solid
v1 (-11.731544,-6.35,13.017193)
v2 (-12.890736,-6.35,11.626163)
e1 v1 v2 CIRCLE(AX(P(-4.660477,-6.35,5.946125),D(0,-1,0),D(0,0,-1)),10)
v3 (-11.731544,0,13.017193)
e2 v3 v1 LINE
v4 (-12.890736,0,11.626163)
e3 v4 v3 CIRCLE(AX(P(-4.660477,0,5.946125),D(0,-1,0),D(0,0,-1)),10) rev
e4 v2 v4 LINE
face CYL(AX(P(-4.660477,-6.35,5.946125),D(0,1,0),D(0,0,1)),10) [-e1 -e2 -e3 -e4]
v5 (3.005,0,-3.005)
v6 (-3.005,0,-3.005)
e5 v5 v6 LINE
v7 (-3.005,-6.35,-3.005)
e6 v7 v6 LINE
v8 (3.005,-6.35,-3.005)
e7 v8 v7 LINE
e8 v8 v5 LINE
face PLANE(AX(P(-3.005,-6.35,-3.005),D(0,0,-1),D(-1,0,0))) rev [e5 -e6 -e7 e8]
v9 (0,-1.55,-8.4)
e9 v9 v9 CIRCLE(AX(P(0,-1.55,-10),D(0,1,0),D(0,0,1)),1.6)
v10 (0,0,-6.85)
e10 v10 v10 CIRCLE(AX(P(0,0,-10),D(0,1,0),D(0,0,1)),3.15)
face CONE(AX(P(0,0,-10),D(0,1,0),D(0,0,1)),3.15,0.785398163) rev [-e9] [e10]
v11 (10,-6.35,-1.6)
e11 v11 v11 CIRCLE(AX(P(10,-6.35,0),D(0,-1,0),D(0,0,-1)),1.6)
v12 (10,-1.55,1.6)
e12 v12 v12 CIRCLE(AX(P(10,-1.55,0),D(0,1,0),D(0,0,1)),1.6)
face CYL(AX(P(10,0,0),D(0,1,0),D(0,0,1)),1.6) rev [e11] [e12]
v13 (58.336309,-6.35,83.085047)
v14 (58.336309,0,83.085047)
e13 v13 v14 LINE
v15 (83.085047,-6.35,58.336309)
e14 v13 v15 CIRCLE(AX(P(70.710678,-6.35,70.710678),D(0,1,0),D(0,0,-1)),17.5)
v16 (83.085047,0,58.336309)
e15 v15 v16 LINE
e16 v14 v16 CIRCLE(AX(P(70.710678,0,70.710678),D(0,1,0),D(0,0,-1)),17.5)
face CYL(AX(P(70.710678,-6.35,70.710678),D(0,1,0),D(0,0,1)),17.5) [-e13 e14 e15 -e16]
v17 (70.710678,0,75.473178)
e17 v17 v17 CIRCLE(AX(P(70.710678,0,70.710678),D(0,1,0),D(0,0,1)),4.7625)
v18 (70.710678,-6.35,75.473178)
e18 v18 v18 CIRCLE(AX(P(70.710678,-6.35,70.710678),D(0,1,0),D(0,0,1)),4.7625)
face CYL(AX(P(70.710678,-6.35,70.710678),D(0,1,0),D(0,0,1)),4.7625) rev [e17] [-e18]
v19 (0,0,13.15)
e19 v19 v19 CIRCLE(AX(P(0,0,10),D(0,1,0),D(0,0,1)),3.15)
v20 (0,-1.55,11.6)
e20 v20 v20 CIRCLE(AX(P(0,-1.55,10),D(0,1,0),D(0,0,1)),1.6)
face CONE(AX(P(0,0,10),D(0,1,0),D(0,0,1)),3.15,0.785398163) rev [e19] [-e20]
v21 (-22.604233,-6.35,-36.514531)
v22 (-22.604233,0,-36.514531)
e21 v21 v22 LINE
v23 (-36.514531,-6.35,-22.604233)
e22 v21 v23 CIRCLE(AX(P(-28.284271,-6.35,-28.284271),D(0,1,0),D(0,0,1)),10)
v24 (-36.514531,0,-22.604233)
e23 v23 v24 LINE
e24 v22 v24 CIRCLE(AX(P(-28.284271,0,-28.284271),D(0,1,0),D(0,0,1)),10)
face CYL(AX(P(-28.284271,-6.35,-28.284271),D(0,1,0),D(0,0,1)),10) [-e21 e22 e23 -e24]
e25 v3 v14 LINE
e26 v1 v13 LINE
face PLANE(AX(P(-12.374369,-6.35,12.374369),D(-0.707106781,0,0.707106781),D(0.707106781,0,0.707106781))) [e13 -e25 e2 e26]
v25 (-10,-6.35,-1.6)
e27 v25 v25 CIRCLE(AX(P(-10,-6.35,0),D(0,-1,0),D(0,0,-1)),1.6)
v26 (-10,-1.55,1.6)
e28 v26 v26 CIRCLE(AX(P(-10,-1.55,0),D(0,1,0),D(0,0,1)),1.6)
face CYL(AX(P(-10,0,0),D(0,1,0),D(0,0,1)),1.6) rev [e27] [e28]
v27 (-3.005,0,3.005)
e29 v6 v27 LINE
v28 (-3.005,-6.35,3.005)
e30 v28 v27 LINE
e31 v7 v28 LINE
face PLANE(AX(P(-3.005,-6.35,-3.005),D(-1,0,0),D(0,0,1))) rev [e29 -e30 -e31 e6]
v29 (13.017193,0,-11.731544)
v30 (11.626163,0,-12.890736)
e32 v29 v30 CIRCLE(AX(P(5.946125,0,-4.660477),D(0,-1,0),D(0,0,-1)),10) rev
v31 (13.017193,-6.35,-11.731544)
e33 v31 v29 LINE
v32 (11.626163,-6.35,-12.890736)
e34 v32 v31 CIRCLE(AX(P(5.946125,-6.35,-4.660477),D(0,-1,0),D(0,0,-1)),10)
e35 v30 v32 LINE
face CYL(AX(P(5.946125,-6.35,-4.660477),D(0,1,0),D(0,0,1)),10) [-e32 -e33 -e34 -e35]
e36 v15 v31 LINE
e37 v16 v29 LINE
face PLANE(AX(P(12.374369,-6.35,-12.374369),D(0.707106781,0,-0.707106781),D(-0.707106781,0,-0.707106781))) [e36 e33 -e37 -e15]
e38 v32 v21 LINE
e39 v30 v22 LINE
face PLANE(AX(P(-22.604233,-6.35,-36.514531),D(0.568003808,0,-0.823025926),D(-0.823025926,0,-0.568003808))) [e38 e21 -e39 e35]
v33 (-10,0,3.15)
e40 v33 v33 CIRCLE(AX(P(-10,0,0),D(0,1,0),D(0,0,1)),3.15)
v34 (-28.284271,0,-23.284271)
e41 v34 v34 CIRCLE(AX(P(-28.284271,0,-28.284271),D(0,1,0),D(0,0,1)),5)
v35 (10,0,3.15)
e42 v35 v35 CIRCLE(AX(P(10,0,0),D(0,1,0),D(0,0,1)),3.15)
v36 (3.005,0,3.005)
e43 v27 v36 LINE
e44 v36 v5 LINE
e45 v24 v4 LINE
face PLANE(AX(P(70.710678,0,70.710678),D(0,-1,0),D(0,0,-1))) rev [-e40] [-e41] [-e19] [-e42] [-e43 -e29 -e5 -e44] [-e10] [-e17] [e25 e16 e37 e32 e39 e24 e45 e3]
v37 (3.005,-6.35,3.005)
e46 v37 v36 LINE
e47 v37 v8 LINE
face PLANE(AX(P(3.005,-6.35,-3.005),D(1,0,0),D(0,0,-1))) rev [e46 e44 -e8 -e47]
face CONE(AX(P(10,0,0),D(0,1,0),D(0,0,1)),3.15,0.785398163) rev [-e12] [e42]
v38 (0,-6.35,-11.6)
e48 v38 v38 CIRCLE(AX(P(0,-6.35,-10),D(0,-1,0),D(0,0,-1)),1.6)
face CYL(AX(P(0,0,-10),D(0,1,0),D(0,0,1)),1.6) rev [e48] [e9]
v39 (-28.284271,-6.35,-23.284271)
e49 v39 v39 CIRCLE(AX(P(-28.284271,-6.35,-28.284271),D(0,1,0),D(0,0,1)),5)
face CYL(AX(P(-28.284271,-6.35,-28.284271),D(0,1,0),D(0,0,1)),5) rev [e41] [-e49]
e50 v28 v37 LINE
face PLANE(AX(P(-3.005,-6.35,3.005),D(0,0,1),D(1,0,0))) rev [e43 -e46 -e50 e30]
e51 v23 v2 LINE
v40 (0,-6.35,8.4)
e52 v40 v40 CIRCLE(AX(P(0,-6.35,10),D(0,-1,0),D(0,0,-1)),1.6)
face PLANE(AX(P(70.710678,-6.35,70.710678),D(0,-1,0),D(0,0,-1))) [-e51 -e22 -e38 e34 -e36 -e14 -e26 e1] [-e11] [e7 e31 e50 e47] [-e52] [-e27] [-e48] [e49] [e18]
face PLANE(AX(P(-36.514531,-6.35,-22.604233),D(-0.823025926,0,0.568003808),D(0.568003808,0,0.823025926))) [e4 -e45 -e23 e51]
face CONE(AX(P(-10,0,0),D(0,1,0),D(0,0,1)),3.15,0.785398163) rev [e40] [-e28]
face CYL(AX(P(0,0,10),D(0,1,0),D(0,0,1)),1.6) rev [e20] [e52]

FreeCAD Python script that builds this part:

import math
import FreeCAD as App
import Part
import Sketcher

V = App.Vector
Q = App.Units.Quantity


def edges_at(feature, points):
    """Names of the edges that pass closest to the given points."""
    edges = feature.Shape.Edges
    near = lambda p: min(range(len(edges)), key=lambda i: edges[i].distToShape(Part.Vertex(*p))[0])
    return sorted({f"Edge{near(p) + 1}" for p in points})


def add_polygon(sketch, points):
    """Adds a closed chain of lines whose ends are joined by coincident constraints."""
    first, n = sketch.GeometryCount, len(points)
    for a, b in zip(points, points[1:] + points[:1]):
        sketch.addGeometry(Part.LineSegment(App.Vector(*a, 0), App.Vector(*b, 0)), False)
    for i in range(n):
        sketch.addConstraint(Sketcher.Constraint("Coincident", first + i, 2, first + (i + 1) % n, 1))

doc = App.newDocument("Part")
body = doc.addObject("PartDesign::Body", "Body")

# Sketch on XZ plane
sketch1 = body.newObject("Sketcher::SketchObject", "Sketch")
sketch1.AttachmentSupport = (doc.getObject("XZ_Plane"), [""])
sketch1.MapMode = "FlatFace"
sketch1.addGeometry(Part.LineSegment(V(83.1, 58.3, 0), V(12.4, -12.4, 0)), False)  # 0
sketch1.addGeometry(Part.LineSegment(V(12.4, -12.4, 0), V(-22.6, -36.5, 0)), False)  # 1
sketch1.addGeometry(Part.ArcOfCircle(Part.Circle(V(-28.3, -28.3, 0), V(0, 0, 1), 10), math.radians(145), math.radians(305)), False)  # 2
sketch1.addGeometry(Part.LineSegment(V(-36.5, -22.6, 0), V(-12.4, 12.4, 0)), False)  # 3
sketch1.addGeometry(Part.LineSegment(V(-12.4, 12.4, 0), V(58.3, 83.1, 0)), False)  # 4
sketch1.addGeometry(Part.ArcOfCircle(Part.Circle(V(70.7, 70.7, 0), V(0, 0, 1), 17.5), math.radians(-45), math.radians(135)), False)  # 5
sketch1.addGeometry(Part.Circle(V(70.7, 70.7, 0), V(0, 0, 1), 4.8), False)  # 6
add_polygon(sketch1, [(3, 3), (-3, 3), (-3, -3), (3, -3)])  # lines 7-10
sketch1.addGeometry(Part.Circle(V(-28.3, -28.3, 0), V(0, 0, 1), 5), False)  # 11
sketch1.addConstraint([
    Sketcher.Constraint("Coincident", 0, 2, 1, 1),
    Sketcher.Constraint("Tangent", 1, 2, 2, 2),
    Sketcher.Constraint("Tangent", 2, 1, 3, 1),
    Sketcher.Constraint("Coincident", 3, 2, 4, 1),
    Sketcher.Constraint("Tangent", 4, 2, 5, 2),
    Sketcher.Constraint("Tangent", 5, 1, 0, 1),
    Sketcher.Constraint("Horizontal", 7),
    Sketcher.Constraint("Vertical", 8),
    Sketcher.Constraint("Horizontal", 9),
    Sketcher.Constraint("Vertical", 10),
    Sketcher.Constraint("Coincident", 6, 3, 5, 3),
    Sketcher.Constraint("Coincident", 11, 3, 2, 3),
    Sketcher.Constraint("Symmetric", 0, 2, 3, 2, -1, 1),
    Sketcher.Constraint("Symmetric", 7, 2, 9, 2, -1, 1),
    Sketcher.Constraint("Parallel", 0, 4),
    Sketcher.Constraint("Equal", 9, 8),
    Sketcher.Constraint("Equal", 1, 3),
    Sketcher.Constraint("Equal", 0, 4),
    Sketcher.Constraint("Diameter", 11, 10.0),
    Sketcher.Constraint("Radius", 2, 10.0),
    Sketcher.Constraint("Radius", 5, 17.5),
    Sketcher.Constraint("Angle", 0, Q("-135 deg")),
    Sketcher.Constraint("Distance", 0, 100.0),
    Sketcher.Constraint("Diameter", 6, 9.525),
    Sketcher.Constraint("Distance", 1, 42.5),
    Sketcher.Constraint("DistanceX", 7, 2, 7, 1, 6.01),
])
pad1 = body.newObject("PartDesign::Pad", "Pad")
pad1.Profile = sketch1
pad1.Length = 6.35

# Sketch on XZ plane
sketch2 = body.newObject("Sketcher::SketchObject", "Sketch001")
sketch2.AttachmentSupport = (doc.getObject("XZ_Plane"), [""])
sketch2.MapMode = "FlatFace"
sketch2.addGeometry([
    Part.Circle(V(0, -10, 0), V(0, 0, 1), 1.6),
    Part.Circle(V(-10, 0, 0), V(0, 0, 1), 1.6),
    Part.Circle(V(10, 0, 0), V(0, 0, 1), 1.6),
    Part.Circle(V(0, 10, 0), V(0, 0, 1), 1.6),
], False)
sketch2.addConstraint([
    Sketcher.Constraint("Equal", 0, 1),
    Sketcher.Constraint("Equal", 1, 2),
    Sketcher.Constraint("Equal", 2, 3),
    Sketcher.Constraint("Symmetric", 1, 3, 2, 3, -1, 1),
    Sketcher.Constraint("Symmetric", 0, 3, 3, 3, -1, 1),
    Sketcher.Constraint("PointOnObject", 0, 3, -2),
    Sketcher.Constraint("PointOnObject", 1, 3, -1),
    Sketcher.Constraint("Diameter", 0, 3.2),
    Sketcher.Constraint("DistanceY", 0, 3, -1, 1, 10.0),
    Sketcher.Constraint("DistanceX", 1, 3, -1, 1, 10.0),
])
doc.recompute()
hole = body.newObject("PartDesign::Hole", "Hole")
hole.Profile = sketch2
hole.ThreadType = "None"
hole.Diameter = 3.2
hole.DepthType = "ThroughAll"
hole.HoleCutType = "Countersink"
hole.HoleCutDiameter = 6.3
hole.HoleCutCountersinkAngle = 90
hole.Reversed = True
doc.recompute()

fillet = body.newObject("PartDesign::Fillet", "Fillet")
fillet.Base = (hole, edges_at(hole, [(12.374, -3.175, -12.374), (-12.374, -3.175, 12.374)]))
fillet.Radius = 10

doc.recompute()
